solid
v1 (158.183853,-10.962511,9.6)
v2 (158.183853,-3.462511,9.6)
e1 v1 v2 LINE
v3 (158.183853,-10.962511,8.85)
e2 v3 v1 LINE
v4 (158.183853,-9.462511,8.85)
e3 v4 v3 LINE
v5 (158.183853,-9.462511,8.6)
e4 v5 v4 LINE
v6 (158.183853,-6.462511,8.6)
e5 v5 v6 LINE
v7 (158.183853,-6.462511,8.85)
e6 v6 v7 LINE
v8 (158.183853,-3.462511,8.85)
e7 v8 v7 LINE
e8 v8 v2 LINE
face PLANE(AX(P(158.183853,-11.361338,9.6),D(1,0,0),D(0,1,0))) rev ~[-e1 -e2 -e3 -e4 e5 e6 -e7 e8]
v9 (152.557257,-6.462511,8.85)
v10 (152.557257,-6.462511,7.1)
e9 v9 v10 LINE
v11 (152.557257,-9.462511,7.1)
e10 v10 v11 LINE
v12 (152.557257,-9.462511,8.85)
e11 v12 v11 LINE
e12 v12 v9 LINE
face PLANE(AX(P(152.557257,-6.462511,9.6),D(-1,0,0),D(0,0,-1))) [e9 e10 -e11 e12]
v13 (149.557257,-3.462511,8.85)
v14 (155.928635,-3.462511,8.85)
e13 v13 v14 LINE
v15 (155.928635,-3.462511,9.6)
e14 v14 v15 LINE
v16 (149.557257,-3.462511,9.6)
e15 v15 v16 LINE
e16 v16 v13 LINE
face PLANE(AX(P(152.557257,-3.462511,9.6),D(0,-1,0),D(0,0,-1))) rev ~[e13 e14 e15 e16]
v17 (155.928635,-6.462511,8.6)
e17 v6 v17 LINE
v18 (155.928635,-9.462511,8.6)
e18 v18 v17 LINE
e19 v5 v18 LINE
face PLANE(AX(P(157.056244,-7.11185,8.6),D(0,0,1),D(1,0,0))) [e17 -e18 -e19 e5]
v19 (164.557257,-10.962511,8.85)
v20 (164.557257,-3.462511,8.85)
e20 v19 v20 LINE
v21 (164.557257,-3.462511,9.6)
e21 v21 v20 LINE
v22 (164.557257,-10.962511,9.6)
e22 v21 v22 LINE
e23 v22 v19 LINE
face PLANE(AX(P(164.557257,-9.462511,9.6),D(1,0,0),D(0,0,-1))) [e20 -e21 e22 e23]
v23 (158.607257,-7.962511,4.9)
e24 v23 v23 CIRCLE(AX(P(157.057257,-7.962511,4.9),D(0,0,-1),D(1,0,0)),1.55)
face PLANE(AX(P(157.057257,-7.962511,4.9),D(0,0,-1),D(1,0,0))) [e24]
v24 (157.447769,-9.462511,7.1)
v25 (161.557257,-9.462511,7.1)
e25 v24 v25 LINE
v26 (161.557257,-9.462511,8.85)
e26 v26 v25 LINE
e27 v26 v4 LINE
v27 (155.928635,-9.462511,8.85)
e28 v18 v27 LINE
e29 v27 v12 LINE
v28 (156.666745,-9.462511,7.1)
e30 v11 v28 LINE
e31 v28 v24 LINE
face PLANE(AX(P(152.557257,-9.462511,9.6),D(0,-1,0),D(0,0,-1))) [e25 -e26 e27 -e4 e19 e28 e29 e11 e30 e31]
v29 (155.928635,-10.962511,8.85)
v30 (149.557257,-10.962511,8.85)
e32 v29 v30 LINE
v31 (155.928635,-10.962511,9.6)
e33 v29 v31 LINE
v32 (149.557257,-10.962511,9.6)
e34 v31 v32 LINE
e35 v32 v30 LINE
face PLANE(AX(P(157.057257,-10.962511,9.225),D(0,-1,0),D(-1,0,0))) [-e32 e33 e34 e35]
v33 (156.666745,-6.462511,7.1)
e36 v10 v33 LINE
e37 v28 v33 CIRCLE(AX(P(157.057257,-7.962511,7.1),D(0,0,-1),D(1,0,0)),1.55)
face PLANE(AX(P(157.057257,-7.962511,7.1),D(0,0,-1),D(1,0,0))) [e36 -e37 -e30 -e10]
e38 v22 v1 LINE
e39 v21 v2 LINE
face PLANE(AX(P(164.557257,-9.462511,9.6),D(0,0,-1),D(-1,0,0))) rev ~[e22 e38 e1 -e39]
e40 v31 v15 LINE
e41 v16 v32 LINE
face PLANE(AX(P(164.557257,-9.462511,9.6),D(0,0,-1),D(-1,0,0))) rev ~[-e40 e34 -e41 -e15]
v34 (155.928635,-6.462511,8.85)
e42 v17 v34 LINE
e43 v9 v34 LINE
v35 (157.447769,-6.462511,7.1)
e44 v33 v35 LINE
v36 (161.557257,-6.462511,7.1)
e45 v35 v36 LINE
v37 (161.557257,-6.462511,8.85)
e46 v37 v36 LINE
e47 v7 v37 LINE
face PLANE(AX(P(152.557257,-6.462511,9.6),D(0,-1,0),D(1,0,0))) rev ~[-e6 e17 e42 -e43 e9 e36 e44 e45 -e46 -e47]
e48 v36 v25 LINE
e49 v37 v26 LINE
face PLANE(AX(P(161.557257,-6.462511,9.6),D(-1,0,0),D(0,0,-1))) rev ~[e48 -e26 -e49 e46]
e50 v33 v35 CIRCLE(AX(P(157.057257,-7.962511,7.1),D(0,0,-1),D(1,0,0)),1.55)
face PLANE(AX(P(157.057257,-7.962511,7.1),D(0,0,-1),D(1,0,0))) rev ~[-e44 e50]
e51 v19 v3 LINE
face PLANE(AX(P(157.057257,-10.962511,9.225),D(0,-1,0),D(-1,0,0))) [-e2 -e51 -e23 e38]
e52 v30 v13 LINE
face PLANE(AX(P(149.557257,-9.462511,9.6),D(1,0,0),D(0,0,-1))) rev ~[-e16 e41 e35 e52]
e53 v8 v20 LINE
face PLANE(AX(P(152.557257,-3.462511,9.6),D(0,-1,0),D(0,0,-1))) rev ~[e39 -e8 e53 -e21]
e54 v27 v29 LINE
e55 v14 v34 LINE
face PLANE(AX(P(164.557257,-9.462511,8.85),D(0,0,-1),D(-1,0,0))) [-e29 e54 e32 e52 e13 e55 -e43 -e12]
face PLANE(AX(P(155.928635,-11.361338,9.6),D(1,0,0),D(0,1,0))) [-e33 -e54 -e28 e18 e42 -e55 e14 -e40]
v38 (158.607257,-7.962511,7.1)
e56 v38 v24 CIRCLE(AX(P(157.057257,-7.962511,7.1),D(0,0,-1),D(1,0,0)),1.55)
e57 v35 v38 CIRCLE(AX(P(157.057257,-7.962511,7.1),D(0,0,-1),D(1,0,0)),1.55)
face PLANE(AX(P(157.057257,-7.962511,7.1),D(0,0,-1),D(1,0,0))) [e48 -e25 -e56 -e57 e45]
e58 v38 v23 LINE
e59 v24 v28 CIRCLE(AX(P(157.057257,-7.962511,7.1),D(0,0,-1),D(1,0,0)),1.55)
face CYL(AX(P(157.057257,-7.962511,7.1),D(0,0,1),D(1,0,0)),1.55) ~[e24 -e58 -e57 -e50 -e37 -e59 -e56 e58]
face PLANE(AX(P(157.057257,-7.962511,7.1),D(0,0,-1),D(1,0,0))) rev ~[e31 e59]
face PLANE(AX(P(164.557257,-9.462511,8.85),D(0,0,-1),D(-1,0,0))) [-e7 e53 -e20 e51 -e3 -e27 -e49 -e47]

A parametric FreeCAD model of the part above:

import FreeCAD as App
import Part
import Sketcher

V = App.Vector
Q = App.Units.Quantity


def add_polygon(sketch, points):
    """Adds a closed chain of lines whose ends are joined by coincident constraints."""
    first, n = sketch.GeometryCount, len(points)
    for a, b in zip(points, points[1:] + points[:1]):
        sketch.addGeometry(Part.LineSegment(App.Vector(*a, 0), App.Vector(*b, 0)), False)
    for i in range(n):
        sketch.addConstraint(Sketcher.Constraint("Coincident", first + i, 2, first + (i + 1) % n, 1))

doc = App.newDocument("Part")
body = doc.addObject("PartDesign::Body", "Body")

# Sketch on XZ plane
sketch1 = body.newObject("Sketcher::SketchObject", "Sketch")
sketch1.AttachmentSupport = (doc.getObject("XZ_Plane"), [""])
sketch1.MapMode = "FlatFace"
add_polygon(sketch1, [(6.1, 20.1), (6.1, 17.1), (15.1, 17.1), (15.1, 20.1)])  # lines 0-3
sketch1.addConstraint(Sketcher.Constraint("Vertical", 0))
sketch1.addConstraint(Sketcher.Constraint("Horizontal", 1))
sketch1.addConstraint(Sketcher.Constraint("Vertical", 2))
sketch1.addConstraint(Sketcher.Constraint("Horizontal", 3))
sketch1.addConstraint(Sketcher.Constraint("DistanceX", 1, 1, 1, 2, Q("9 mm")))
sketch1.addConstraint(Sketcher.Constraint("DistanceY", 0, 2, 0, 1, Q("3 mm")))
sketch1.addConstraint(Sketcher.Constraint("DistanceY", -1, 1, 0, 2, Q("17.062511 mm")))
sketch1.addConstraint(Sketcher.Constraint("DistanceX", -1, 1, 0, 2, Q("6.057257 mm")))
pad1 = body.newObject("PartDesign::Pad", "Pad")
pad1.Profile = sketch1
pad1.Length = 2.5

# Sketch on XZ plane
sketch2 = body.newObject("Sketcher::SketchObject", "Sketch001")
sketch2.AttachmentSupport = (doc.getObject("XZ_Plane"), [""])
sketch2.MapMode = "FlatFace"
sketch2.AttachmentOffset = App.Placement(V(0, 0, 2.5), App.Rotation())
sketch2.addGeometry(Part.Circle(V(10.6, 18.6, 0), V(0, 0, 1), 1.6), False)
sketch2.addConstraint(Sketcher.Constraint("Diameter", 0, Q("3.1 mm")))
sketch2.addConstraint(Sketcher.Constraint("DistanceY", -1, 1, 0, 3, Q("18.562511 mm")))
sketch2.addConstraint(Sketcher.Constraint("DistanceX", -1, 1, 0, 3, Q("10.557257 mm")))
pad2 = body.newObject("PartDesign::Pad", "Pad001")
pad2.Profile = sketch2
pad2.Length = 2.2

# Sketch on XY plane
sketch3 = body.newObject("Sketcher::SketchObject", "Sketch002")
sketch3.AttachmentSupport = (doc.getObject("XY_Plane"), [""])
sketch3.MapMode = "FlatFace"
sketch3.AttachmentOffset = App.Placement(V(0, 0, 17.062511), App.Rotation())
add_polygon(sketch3, [(6.1, -0.8), (6.1, 0), (15.1, 0), (15.1, -0.8)])  # lines 0-3
sketch3.addConstraint(Sketcher.Constraint("Vertical", 0))
sketch3.addConstraint(Sketcher.Constraint("Horizontal", 1))
sketch3.addConstraint(Sketcher.Constraint("Vertical", 2))
sketch3.addConstraint(Sketcher.Constraint("Horizontal", 3))
sketch3.addConstraint(Sketcher.Constraint("PointOnObject", 0, 2, -1))
sketch3.addConstraint(Sketcher.Constraint("DistanceX", 1, 1, 1, 2, Q("9 mm")))
sketch3.addConstraint(Sketcher.Constraint("DistanceY", 0, 1, 0, 2, Q("0.75 mm")))
sketch3.addConstraint(Sketcher.Constraint("DistanceX", -1, 1, 0, 2, Q("6.057257 mm")))
pad3 = body.newObject("PartDesign::Pad", "Pad002")
pad3.Profile = sketch3
pad3.Length = 3
pad3.Reversed = True

# Sketch on YZ plane
sketch4 = body.newObject("Sketcher::SketchObject", "Sketch003")
sketch4.AttachmentSupport = (doc.getObject("YZ_Plane"), [""])
sketch4.MapMode = "FlatFace"
sketch4.AttachmentOffset = App.Placement(V(0, 0, 15.057257), App.Rotation())
add_polygon(sketch4, [(-0.8, 14.1), (0, 14.1), (0, 20.1), (-0.8, 20.1)])  # lines 0-3
sketch4.addConstraint(Sketcher.Constraint("Horizontal", 0))
sketch4.addConstraint(Sketcher.Constraint("Vertical", 1))
sketch4.addConstraint(Sketcher.Constraint("Horizontal", 2))
sketch4.addConstraint(Sketcher.Constraint("Vertical", 3))
sketch4.addConstraint(Sketcher.Constraint("PointOnObject", 0, 2, -2))
sketch4.addConstraint(Sketcher.Constraint("DistanceY", 1, 1, 1, 2, Q("6 mm")))
sketch4.addConstraint(Sketcher.Constraint("DistanceX", 0, 1, 0, 2, Q("0.75 mm")))
sketch4.addConstraint(Sketcher.Constraint("DistanceY", -1, 1, 0, 2, Q("14.062511 mm")))
pad4 = body.newObject("PartDesign::Pad", "Pad003")
pad4.Profile = sketch4
pad4.Length = 3

# Sketch on YZ plane
sketch5 = body.newObject("Sketcher::SketchObject", "Sketch004")
sketch5.AttachmentSupport = (doc.getObject("YZ_Plane"), [""])
sketch5.MapMode = "FlatFace"
sketch5.AttachmentOffset = App.Placement(V(0, 0, 6.057257), App.Rotation())
add_polygon(sketch5, [(-0.8, 20.1), (0, 20.1), (0, 14.1), (-0.8, 14.1)])  # lines 0-3
sketch5.addConstraint(Sketcher.Constraint("Horizontal", 0))
sketch5.addConstraint(Sketcher.Constraint("Vertical", 1))
sketch5.addConstraint(Sketcher.Constraint("Horizontal", 2))
sketch5.addConstraint(Sketcher.Constraint("Vertical", 3))
sketch5.addConstraint(Sketcher.Constraint("PointOnObject", 0, 2, -2))
sketch5.addConstraint(Sketcher.Constraint("DistanceY", 1, 2, 1, 1, Q("6 mm")))
sketch5.addConstraint(Sketcher.Constraint("DistanceX", 0, 1, 0, 2, Q("0.75 mm")))
sketch5.addConstraint(Sketcher.Constraint("DistanceY", -1, 1, 0, 2, Q("20.062511 mm")))
pad5 = body.newObject("PartDesign::Pad", "Pad004")
pad5.Profile = sketch5
pad5.Length = 3
pad5.Reversed = True

# Sketch on XY plane
sketch6 = body.newObject("Sketcher::SketchObject", "Sketch005")
sketch6.AttachmentSupport = (doc.getObject("XY_Plane"), [""])
sketch6.MapMode = "FlatFace"
sketch6.AttachmentOffset = App.Placement(V(0, 0, 20.062511), App.Rotation())
add_polygon(sketch6, [(18.1, -0.8), (18.1, 0), (3.1, 0), (3.1, -0.8)])  # lines 0-3
sketch6.addConstraint(Sketcher.Constraint("Vertical", 0))
sketch6.addConstraint(Sketcher.Constraint("Horizontal", 1))
sketch6.addConstraint(Sketcher.Constraint("Vertical", 2))
sketch6.addConstraint(Sketcher.Constraint("Horizontal", 3))
sketch6.addConstraint(Sketcher.Constraint("PointOnObject", 0, 2, -1))
sketch6.addConstraint(Sketcher.Constraint("DistanceX", 1, 2, 1, 1, Q("15 mm")))
sketch6.addConstraint(Sketcher.Constraint("DistanceY", 0, 1, 0, 2, Q("0.75 mm")))
sketch6.addConstraint(Sketcher.Constraint("DistanceX", -1, 1, 0, 2, Q("18.057257 mm")))
pad6 = body.newObject("PartDesign::Pad", "Pad005")
pad6.Profile = sketch6
pad6.Length = 1.5

# Sketch on XZ plane
sketch7 = body.newObject("Sketcher::SketchObject", "Sketch006")
sketch7.AttachmentSupport = (doc.getObject("XZ_Plane"), [""])
sketch7.MapMode = "FlatFace"
add_polygon(sketch7, [(9.4, 13.5), (9.4, 22), (11.7, 22), (11.7, 13.5)])  # lines 0-3
sketch7.addConstraint(Sketcher.Constraint("Vertical", 0))
sketch7.addConstraint(Sketcher.Constraint("Horizontal", 1))
sketch7.addConstraint(Sketcher.Constraint("Vertical", 2))
sketch7.addConstraint(Sketcher.Constraint("Horizontal", 3))
sketch7.addConstraint(Sketcher.Constraint("DistanceX", 1, 1, 1, 2, Q("2.255218 mm")))
sketch7.addConstraint(Sketcher.Constraint("DistanceY", 0, 1, 0, 2, Q("8.498976 mm")))
sketch7.addConstraint(Sketcher.Constraint("DistanceY", -1, 1, 0, 2, Q("21.961338 mm")))
sketch7.addConstraint(Sketcher.Constraint("DistanceX", -1, 1, 0, 2, Q("9.428635 mm")))
pocket1 = body.newObject("PartDesign::Pocket", "Pocket")
pocket1.Profile = sketch7
pocket1.Length = 1
pocket1.Reversed = True
body2 = doc.addObject("PartDesign::Body", "Body001")
doc.recompute()

body.Placement = App.Placement(V(146.5, 10.6, 9.6), App.Rotation(V(1, 0, 0), 90))
boolean = body2.newObject("PartDesign::Boolean", "Boolean")
boolean.Type = "Fuse"
boolean.addObjects([body])

doc.recompute()
